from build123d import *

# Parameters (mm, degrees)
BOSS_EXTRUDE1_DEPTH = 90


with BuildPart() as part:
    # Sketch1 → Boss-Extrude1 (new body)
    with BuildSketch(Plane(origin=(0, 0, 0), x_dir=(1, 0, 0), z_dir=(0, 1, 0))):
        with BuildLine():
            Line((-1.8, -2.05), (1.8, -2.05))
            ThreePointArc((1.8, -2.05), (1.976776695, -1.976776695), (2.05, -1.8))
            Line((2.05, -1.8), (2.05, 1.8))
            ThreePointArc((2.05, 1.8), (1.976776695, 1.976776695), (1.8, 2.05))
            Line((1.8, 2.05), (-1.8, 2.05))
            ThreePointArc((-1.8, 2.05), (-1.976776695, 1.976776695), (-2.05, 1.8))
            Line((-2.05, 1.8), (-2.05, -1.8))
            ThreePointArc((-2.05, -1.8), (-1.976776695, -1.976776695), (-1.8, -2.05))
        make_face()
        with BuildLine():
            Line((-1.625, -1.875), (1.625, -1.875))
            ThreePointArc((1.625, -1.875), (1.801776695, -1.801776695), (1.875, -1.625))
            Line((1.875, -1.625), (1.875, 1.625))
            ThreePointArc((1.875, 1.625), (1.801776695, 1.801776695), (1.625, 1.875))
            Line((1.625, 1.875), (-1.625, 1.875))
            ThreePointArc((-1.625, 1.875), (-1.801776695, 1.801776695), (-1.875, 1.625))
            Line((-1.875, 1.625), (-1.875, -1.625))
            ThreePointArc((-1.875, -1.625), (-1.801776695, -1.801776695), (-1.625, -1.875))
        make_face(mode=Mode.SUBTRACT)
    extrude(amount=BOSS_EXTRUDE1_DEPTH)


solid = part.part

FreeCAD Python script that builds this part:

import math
import FreeCAD as App
import Part
import Sketcher

V = App.Vector

doc = App.newDocument("Part")
body = doc.addObject("PartDesign::Body", "Body")

sketch1 = body.newObject("Sketcher::SketchObject", "Sketch")
sketch1.AttachmentSupport = (doc.getObject("XZ_Plane"), [""])
sketch1.MapMode = "FlatFace"
sketch1.addGeometry(Part.LineSegment(V(-1.8, 2.05, 0), V(1.8, 2.05, 0)), False)
sketch1.addGeometry(Part.ArcOfCircle(Part.Circle(V(1.8, 1.8, 0), V(0, 0, 1), 0.25), math.radians(0), math.radians(90)), False)
sketch1.addGeometry(Part.LineSegment(V(2.05, 1.8, 0), V(2.05, -1.8, 0)), False)
sketch1.addGeometry(Part.ArcOfCircle(Part.Circle(V(1.8, -1.8, 0), V(0, 0, 1), 0.25), math.radians(-90), math.radians(0)), False)
sketch1.addGeometry(Part.LineSegment(V(1.8, -2.05, 0), V(-1.8, -2.05, 0)), False)
sketch1.addGeometry(Part.ArcOfCircle(Part.Circle(V(-1.8, -1.8, 0), V(0, 0, 1), 0.25), math.radians(-180), math.radians(-90)), False)
sketch1.addGeometry(Part.LineSegment(V(-2.05, -1.8, 0), V(-2.05, 1.8, 0)), False)
sketch1.addGeometry(Part.ArcOfCircle(Part.Circle(V(-1.8, 1.8, 0), V(0, 0, 1), 0.25), math.radians(90), math.radians(180)), False)
sketch1.addGeometry(Part.LineSegment(V(1.62, 1.88, 0), V(-1.62, 1.88, 0)), False)
sketch1.addGeometry(Part.ArcOfCircle(Part.Circle(V(-1.62, 1.62, 0), V(0, 0, 1), 0.25), math.radians(90), math.radians(180)), False)
sketch1.addGeometry(Part.LineSegment(V(-1.88, 1.62, 0), V(-1.88, -1.62, 0)), False)
sketch1.addGeometry(Part.ArcOfCircle(Part.Circle(V(-1.62, -1.62, 0), V(0, 0, 1), 0.25), math.radians(-180), math.radians(-90)), False)
sketch1.addGeometry(Part.LineSegment(V(-1.62, -1.88, 0), V(1.62, -1.88, 0)), False)
sketch1.addGeometry(Part.ArcOfCircle(Part.Circle(V(1.62, -1.62, 0), V(0, 0, 1), 0.25), math.radians(-90), math.radians(0)), False)
sketch1.addGeometry(Part.LineSegment(V(1.88, -1.62, 0), V(1.88, 1.62, 0)), False)
sketch1.addGeometry(Part.ArcOfCircle(Part.Circle(V(1.62, 1.62, 0), V(0, 0, 1), 0.25), math.radians(0), math.radians(90)), False)
sketch1.addConstraint(Sketcher.Constraint("Tangent", 0, 2, 1, 2))
sketch1.addConstraint(Sketcher.Constraint("Tangent", 1, 1, 2, 1))
sketch1.addConstraint(Sketcher.Constraint("Tangent", 2, 2, 3, 2))
sketch1.addConstraint(Sketcher.Constraint("Tangent", 3, 1, 4, 1))
sketch1.addConstraint(Sketcher.Constraint("Tangent", 4, 2, 5, 2))
sketch1.addConstraint(Sketcher.Constraint("Tangent", 5, 1, 6, 1))
sketch1.addConstraint(Sketcher.Constraint("Tangent", 6, 2, 7, 2))
sketch1.addConstraint(Sketcher.Constraint("Tangent", 7, 1, 0, 1))
sketch1.addConstraint(Sketcher.Constraint("Tangent", 8, 2, 9, 1))
sketch1.addConstraint(Sketcher.Constraint("Tangent", 9, 2, 10, 1))
sketch1.addConstraint(Sketcher.Constraint("Tangent", 10, 2, 11, 1))
sketch1.addConstraint(Sketcher.Constraint("Tangent", 11, 2, 12, 1))
sketch1.addConstraint(Sketcher.Constraint("Tangent", 12, 2, 13, 1))
sketch1.addConstraint(Sketcher.Constraint("Tangent", 13, 2, 14, 1))
sketch1.addConstraint(Sketcher.Constraint("Tangent", 14, 2, 15, 1))
sketch1.addConstraint(Sketcher.Constraint("Tangent", 15, 2, 8, 1))
sketch1.addConstraint(Sketcher.Constraint("Horizontal", 0))
sketch1.addConstraint(Sketcher.Constraint("Vertical", 2))
sketch1.addConstraint(Sketcher.Constraint("Horizontal", 4))
sketch1.addConstraint(Sketcher.Constraint("Vertical", 6))
sketch1.addConstraint(Sketcher.Constraint("Horizontal", 8))
sketch1.addConstraint(Sketcher.Constraint("Vertical", 10))
sketch1.addConstraint(Sketcher.Constraint("Horizontal", 12))
sketch1.addConstraint(Sketcher.Constraint("Vertical", 14))
sketch1.addConstraint(Sketcher.Constraint("Equal", 1, 3))
sketch1.addConstraint(Sketcher.Constraint("Equal", 3, 5))
sketch1.addConstraint(Sketcher.Constraint("Equal", 5, 7))
sketch1.addConstraint(Sketcher.Constraint("Equal", 7, 9))
sketch1.addConstraint(Sketcher.Constraint("Equal", 9, 11))
sketch1.addConstraint(Sketcher.Constraint("Equal", 11, 13))
sketch1.addConstraint(Sketcher.Constraint("Equal", 13, 15))
sketch1.addConstraint(Sketcher.Constraint("Symmetric", 1, 3, 5, 3, -1, 1))
sketch1.addConstraint(Sketcher.Constraint("Symmetric", 9, 3, 13, 3, -1, 1))
sketch1.addConstraint(Sketcher.Constraint("Equal", 4, 2))
sketch1.addConstraint(Sketcher.Constraint("Equal", 12, 10))
sketch1.addConstraint(Sketcher.Constraint("Radius", 1, 0.25))
sketch1.addConstraint(Sketcher.Constraint("DistanceX", 0, 1, 0, 2, 3.6))
sketch1.addConstraint(Sketcher.Constraint("DistanceX", 8, 2, 8, 1, 3.25))
pad1 = body.newObject("PartDesign::Pad", "Pad")
pad1.Profile = sketch1
pad1.Length = 90
pad1.Reversed = True

doc.recompute()
